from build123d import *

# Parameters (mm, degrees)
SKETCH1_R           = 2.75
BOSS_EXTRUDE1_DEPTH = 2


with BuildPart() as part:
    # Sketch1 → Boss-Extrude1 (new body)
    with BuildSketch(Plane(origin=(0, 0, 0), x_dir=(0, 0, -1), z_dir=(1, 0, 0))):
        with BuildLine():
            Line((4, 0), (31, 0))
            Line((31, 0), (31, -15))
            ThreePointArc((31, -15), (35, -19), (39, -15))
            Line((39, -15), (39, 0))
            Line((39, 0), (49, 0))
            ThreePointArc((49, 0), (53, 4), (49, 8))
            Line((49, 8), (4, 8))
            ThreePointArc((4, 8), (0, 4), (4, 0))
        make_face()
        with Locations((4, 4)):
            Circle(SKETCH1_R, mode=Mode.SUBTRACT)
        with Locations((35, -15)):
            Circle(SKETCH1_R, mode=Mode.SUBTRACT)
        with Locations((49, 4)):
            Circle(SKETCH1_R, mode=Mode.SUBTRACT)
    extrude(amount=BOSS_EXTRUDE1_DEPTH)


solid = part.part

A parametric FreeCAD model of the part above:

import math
import FreeCAD as App
import Part
import Sketcher

V = App.Vector

doc = App.newDocument("Part")
params = doc.addObject("Spreadsheet::Sheet", "Params")
for row, (alias, value) in enumerate([
    ("sketch1_radius", "4 mm"),
    ("sketch1_diameter", "5.5 mm"),
    ("sketch1_width", "15 mm"),
    ("sketch1_height", "27 mm"),
    ("sketch1_height2", "10 mm"),
    ("pad1_length", "2 mm"),
], start=1):
    params.set(f"A{row}", alias)
    params.set(f"B{row}", "=" + value)
    params.setAlias(f"B{row}", alias)

body = doc.addObject("PartDesign::Body", "Body")

# Sketch on YZ plane
sketch1 = body.newObject("Sketcher::SketchObject", "Sketch")
sketch1.AttachmentSupport = (doc.getObject("YZ_Plane"), [""])
sketch1.MapMode = "FlatFace"
sketch1.addGeometry(Part.LineSegment(V(0, -4, 0), V(0, -31, 0)), False)
sketch1.addGeometry(Part.LineSegment(V(0, -31, 0), V(-15, -31, 0)), False)
sketch1.addGeometry(Part.ArcOfCircle(Part.Circle(V(-15, -35, 0), V(0, 0, 1), 4), math.radians(90), math.radians(270)), False)
sketch1.addGeometry(Part.LineSegment(V(-15, -39, 0), V(0, -39, 0)), False)
sketch1.addGeometry(Part.LineSegment(V(0, -39, 0), V(0, -49, 0)), False)
sketch1.addGeometry(Part.ArcOfCircle(Part.Circle(V(4, -49, 0), V(0, 0, 1), 4), math.radians(180), math.radians(360)), False)
sketch1.addGeometry(Part.LineSegment(V(8, -49, 0), V(8, -4, 0)), False)
sketch1.addGeometry(Part.ArcOfCircle(Part.Circle(V(4, -4, 0), V(0, 0, 1), 4), math.radians(0), math.radians(180)), False)
sketch1.addGeometry(Part.Circle(V(-15, -35, 0), V(0, 0, 1), 2.8), False)
sketch1.addGeometry(Part.Circle(V(4, -4, 0), V(0, 0, 1), 2.8), False)
sketch1.addGeometry(Part.Circle(V(4, -49, 0), V(0, 0, 1), 2.8), False)
sketch1.addConstraint(Sketcher.Constraint("Coincident", 0, 2, 1, 1))
sketch1.addConstraint(Sketcher.Constraint("Tangent", 1, 2, 2, 1))
sketch1.addConstraint(Sketcher.Constraint("Tangent", 2, 2, 3, 1))
sketch1.addConstraint(Sketcher.Constraint("Coincident", 3, 2, 4, 1))
sketch1.addConstraint(Sketcher.Constraint("Tangent", 4, 2, 5, 1))
sketch1.addConstraint(Sketcher.Constraint("Tangent", 5, 2, 6, 1))
sketch1.addConstraint(Sketcher.Constraint("Tangent", 6, 2, 7, 1))
sketch1.addConstraint(Sketcher.Constraint("Tangent", 7, 2, 0, 1))
sketch1.addConstraint(Sketcher.Constraint("Vertical", 0))
sketch1.addConstraint(Sketcher.Constraint("Horizontal", 1))
sketch1.addConstraint(Sketcher.Constraint("Horizontal", 3))
sketch1.addConstraint(Sketcher.Constraint("Vertical", 4))
sketch1.addConstraint(Sketcher.Constraint("Vertical", 6))
sketch1.addConstraint(Sketcher.Constraint("Coincident", 8, 3, 2, 3))
sketch1.addConstraint(Sketcher.Constraint("Coincident", 9, 3, 7, 3))
sketch1.addConstraint(Sketcher.Constraint("Coincident", 10, 3, 5, 3))
sketch1.addConstraint(Sketcher.Constraint("Equal", 2, 5))
sketch1.addConstraint(Sketcher.Constraint("Equal", 5, 7))
sketch1.addConstraint(Sketcher.Constraint("Equal", 8, 9))
sketch1.addConstraint(Sketcher.Constraint("Equal", 9, 10))
sketch1.addConstraint(Sketcher.Constraint("PointOnObject", 0, 2, -2))
sketch1.addConstraint(Sketcher.Constraint("Radius", 2, 4.0))
sketch1.addConstraint(Sketcher.Constraint("Diameter", 8, 5.5))
sketch1.addConstraint(Sketcher.Constraint("DistanceX", 1, 2, 1, 1, 15.0))
sketch1.addConstraint(Sketcher.Constraint("DistanceY", 0, 2, 0, 1, 27.0))
sketch1.addConstraint(Sketcher.Constraint("DistanceY", 4, 2, 4, 1, 10.0))
sketch1.addConstraint(Sketcher.Constraint("DistanceY", 2, 3, -1, 1, 35.0))
sketch1.setExpression("Constraints[21]", "Params.sketch1_radius")
sketch1.setExpression("Constraints[22]", "Params.sketch1_diameter")
sketch1.setExpression("Constraints[23]", "Params.sketch1_width")
sketch1.setExpression("Constraints[24]", "Params.sketch1_height")
sketch1.setExpression("Constraints[25]", "Params.sketch1_height2")
pad1 = body.newObject("PartDesign::Pad", "Pad")
pad1.Profile = sketch1
pad1.setExpression("Length", "Params.pad1_length")

doc.recompute()
